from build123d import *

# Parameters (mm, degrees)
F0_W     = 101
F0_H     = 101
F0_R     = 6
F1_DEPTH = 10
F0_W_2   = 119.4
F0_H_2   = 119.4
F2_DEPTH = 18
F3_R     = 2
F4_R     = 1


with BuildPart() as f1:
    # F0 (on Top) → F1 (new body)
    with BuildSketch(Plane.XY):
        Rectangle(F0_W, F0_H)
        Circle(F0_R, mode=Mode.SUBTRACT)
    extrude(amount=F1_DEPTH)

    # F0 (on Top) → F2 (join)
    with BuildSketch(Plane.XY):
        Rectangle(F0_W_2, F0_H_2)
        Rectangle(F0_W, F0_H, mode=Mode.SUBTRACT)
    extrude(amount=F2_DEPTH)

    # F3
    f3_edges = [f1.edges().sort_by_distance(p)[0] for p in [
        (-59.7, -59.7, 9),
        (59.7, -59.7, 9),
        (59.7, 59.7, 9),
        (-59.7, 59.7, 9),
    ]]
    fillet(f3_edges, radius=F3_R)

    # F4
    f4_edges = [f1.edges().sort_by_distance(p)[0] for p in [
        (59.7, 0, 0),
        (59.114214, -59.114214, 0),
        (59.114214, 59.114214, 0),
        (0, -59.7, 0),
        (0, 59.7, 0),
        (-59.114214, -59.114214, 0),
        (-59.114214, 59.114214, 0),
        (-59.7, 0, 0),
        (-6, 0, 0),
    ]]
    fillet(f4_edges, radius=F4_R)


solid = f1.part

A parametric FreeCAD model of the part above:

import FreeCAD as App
import Part
import Sketcher

V = App.Vector
Q = App.Units.Quantity


def edges_at(feature, points):
    """Names of the edges that pass closest to the given points."""
    edges = feature.Shape.Edges
    near = lambda p: min(range(len(edges)), key=lambda i: edges[i].distToShape(Part.Vertex(*p))[0])
    return sorted({f"Edge{near(p) + 1}" for p in points})

doc = App.newDocument("Part")
body = doc.addObject("PartDesign::Body", "Body")

# Sketch on XY plane
sketch1 = doc.addObject("Sketcher::SketchObject", "Sketch")
body.addObject(sketch1)
sketch1.AttachmentSupport = (doc.XY_Plane, [""])
sketch1.MapMode = "FlatFace"
sketch1.addGeometry(Part.LineSegment(V(-50, 50, 0), V(-50, -50, 0)), False)
sketch1.addGeometry(Part.LineSegment(V(-50, -50, 0), V(50, -50, 0)), False)
sketch1.addGeometry(Part.LineSegment(V(50, -50, 0), V(50, 50, 0)), False)
sketch1.addGeometry(Part.LineSegment(V(50, 50, 0), V(-50, 50, 0)), False)
sketch1.addGeometry(Part.Circle(V(0, 0, 0), V(0, 0, 1), 6), False)
sketch1.addConstraint(Sketcher.Constraint("Coincident", 0, 2, 1, 1))
sketch1.addConstraint(Sketcher.Constraint("Coincident", 1, 2, 2, 1))
sketch1.addConstraint(Sketcher.Constraint("Coincident", 2, 2, 3, 1))
sketch1.addConstraint(Sketcher.Constraint("Coincident", 3, 2, 0, 1))
sketch1.addConstraint(Sketcher.Constraint("Vertical", 0))
sketch1.addConstraint(Sketcher.Constraint("Horizontal", 1))
sketch1.addConstraint(Sketcher.Constraint("Vertical", 2))
sketch1.addConstraint(Sketcher.Constraint("Horizontal", 3))
sketch1.addConstraint(Sketcher.Constraint("Coincident", 4, 3, -1, 1))
sketch1.addConstraint(Sketcher.Constraint("Symmetric", 0, 2, 2, 2, -1, 1))
sketch1.addConstraint(Sketcher.Constraint("Equal", 3, 0))
sketch1.addConstraint(Sketcher.Constraint("Diameter", 4, Q("12 mm")))
sketch1.addConstraint(Sketcher.Constraint("DistanceX", 1, 1, 1, 2, Q("101 mm")))
pad1 = doc.addObject("PartDesign::Pad", "Pad")
body.addObject(pad1)
pad1.Profile = sketch1
pad1.Length = 10

# Sketch on XY plane
sketch2 = doc.addObject("Sketcher::SketchObject", "Sketch001")
body.addObject(sketch2)
sketch2.AttachmentSupport = (doc.XY_Plane, [""])
sketch2.MapMode = "FlatFace"
sketch2.addGeometry(Part.LineSegment(V(-60, 60, 0), V(-60, -60, 0)), False)
sketch2.addGeometry(Part.LineSegment(V(-60, -60, 0), V(60, -60, 0)), False)
sketch2.addGeometry(Part.LineSegment(V(60, -60, 0), V(60, 60, 0)), False)
sketch2.addGeometry(Part.LineSegment(V(60, 60, 0), V(-60, 60, 0)), False)
sketch2.addGeometry(Part.LineSegment(V(50, -50, 0), V(-50, -50, 0)), False)
sketch2.addGeometry(Part.LineSegment(V(-50, -50, 0), V(-50, 50, 0)), False)
sketch2.addGeometry(Part.LineSegment(V(-50, 50, 0), V(50, 50, 0)), False)
sketch2.addGeometry(Part.LineSegment(V(50, 50, 0), V(50, -50, 0)), False)
sketch2.addConstraint(Sketcher.Constraint("Coincident", 0, 2, 1, 1))
sketch2.addConstraint(Sketcher.Constraint("Coincident", 1, 2, 2, 1))
sketch2.addConstraint(Sketcher.Constraint("Coincident", 2, 2, 3, 1))
sketch2.addConstraint(Sketcher.Constraint("Coincident", 3, 2, 0, 1))
sketch2.addConstraint(Sketcher.Constraint("Coincident", 4, 2, 5, 1))
sketch2.addConstraint(Sketcher.Constraint("Coincident", 5, 2, 6, 1))
sketch2.addConstraint(Sketcher.Constraint("Coincident", 6, 2, 7, 1))
sketch2.addConstraint(Sketcher.Constraint("Coincident", 7, 2, 4, 1))
sketch2.addConstraint(Sketcher.Constraint("Vertical", 0))
sketch2.addConstraint(Sketcher.Constraint("Horizontal", 1))
sketch2.addConstraint(Sketcher.Constraint("Vertical", 2))
sketch2.addConstraint(Sketcher.Constraint("Horizontal", 3))
sketch2.addConstraint(Sketcher.Constraint("Horizontal", 4))
sketch2.addConstraint(Sketcher.Constraint("Vertical", 5))
sketch2.addConstraint(Sketcher.Constraint("Horizontal", 6))
sketch2.addConstraint(Sketcher.Constraint("Vertical", 7))
sketch2.addConstraint(Sketcher.Constraint("Symmetric", 0, 2, 2, 2, -1, 1))
sketch2.addConstraint(Sketcher.Constraint("Symmetric", 4, 2, 6, 2, -1, 1))
sketch2.addConstraint(Sketcher.Constraint("Equal", 3, 0))
sketch2.addConstraint(Sketcher.Constraint("Equal", 6, 5))
sketch2.addConstraint(Sketcher.Constraint("DistanceX", 4, 2, 4, 1, Q("101 mm")))
sketch2.addConstraint(Sketcher.Constraint("DistanceX", 1, 1, 1, 2, Q("119.4 mm")))
pad2 = doc.addObject("PartDesign::Pad", "Pad001")
body.addObject(pad2)
pad2.Profile = sketch2
pad2.Length = 18
doc.recompute()

fillet = doc.addObject("PartDesign::Fillet", "Fillet")
body.addObject(fillet)
fillet.Base = (pad2, edges_at(pad2, [
    (-59.7, -59.7, 9),
    (59.7, -59.7, 9),
    (59.7, 59.7, 9),
    (-59.7, 59.7, 9),
]))
fillet.Radius = 2
doc.recompute()

fillet2 = doc.addObject("PartDesign::Fillet", "Fillet001")
body.addObject(fillet2)
fillet2.Base = (fillet, edges_at(fillet, [
    (59.7, 0, 0),
    (59.114, -59.114, 0),
    (59.114, 59.114, 0),
    (0, -59.7, 0),
    (0, 59.7, 0),
    (-59.114, -59.114, 0),
    (-59.114, 59.114, 0),
    (-59.7, 0, 0),
    (-6, 0, 0),
]))
fillet2.Radius = 1

doc.recompute()
